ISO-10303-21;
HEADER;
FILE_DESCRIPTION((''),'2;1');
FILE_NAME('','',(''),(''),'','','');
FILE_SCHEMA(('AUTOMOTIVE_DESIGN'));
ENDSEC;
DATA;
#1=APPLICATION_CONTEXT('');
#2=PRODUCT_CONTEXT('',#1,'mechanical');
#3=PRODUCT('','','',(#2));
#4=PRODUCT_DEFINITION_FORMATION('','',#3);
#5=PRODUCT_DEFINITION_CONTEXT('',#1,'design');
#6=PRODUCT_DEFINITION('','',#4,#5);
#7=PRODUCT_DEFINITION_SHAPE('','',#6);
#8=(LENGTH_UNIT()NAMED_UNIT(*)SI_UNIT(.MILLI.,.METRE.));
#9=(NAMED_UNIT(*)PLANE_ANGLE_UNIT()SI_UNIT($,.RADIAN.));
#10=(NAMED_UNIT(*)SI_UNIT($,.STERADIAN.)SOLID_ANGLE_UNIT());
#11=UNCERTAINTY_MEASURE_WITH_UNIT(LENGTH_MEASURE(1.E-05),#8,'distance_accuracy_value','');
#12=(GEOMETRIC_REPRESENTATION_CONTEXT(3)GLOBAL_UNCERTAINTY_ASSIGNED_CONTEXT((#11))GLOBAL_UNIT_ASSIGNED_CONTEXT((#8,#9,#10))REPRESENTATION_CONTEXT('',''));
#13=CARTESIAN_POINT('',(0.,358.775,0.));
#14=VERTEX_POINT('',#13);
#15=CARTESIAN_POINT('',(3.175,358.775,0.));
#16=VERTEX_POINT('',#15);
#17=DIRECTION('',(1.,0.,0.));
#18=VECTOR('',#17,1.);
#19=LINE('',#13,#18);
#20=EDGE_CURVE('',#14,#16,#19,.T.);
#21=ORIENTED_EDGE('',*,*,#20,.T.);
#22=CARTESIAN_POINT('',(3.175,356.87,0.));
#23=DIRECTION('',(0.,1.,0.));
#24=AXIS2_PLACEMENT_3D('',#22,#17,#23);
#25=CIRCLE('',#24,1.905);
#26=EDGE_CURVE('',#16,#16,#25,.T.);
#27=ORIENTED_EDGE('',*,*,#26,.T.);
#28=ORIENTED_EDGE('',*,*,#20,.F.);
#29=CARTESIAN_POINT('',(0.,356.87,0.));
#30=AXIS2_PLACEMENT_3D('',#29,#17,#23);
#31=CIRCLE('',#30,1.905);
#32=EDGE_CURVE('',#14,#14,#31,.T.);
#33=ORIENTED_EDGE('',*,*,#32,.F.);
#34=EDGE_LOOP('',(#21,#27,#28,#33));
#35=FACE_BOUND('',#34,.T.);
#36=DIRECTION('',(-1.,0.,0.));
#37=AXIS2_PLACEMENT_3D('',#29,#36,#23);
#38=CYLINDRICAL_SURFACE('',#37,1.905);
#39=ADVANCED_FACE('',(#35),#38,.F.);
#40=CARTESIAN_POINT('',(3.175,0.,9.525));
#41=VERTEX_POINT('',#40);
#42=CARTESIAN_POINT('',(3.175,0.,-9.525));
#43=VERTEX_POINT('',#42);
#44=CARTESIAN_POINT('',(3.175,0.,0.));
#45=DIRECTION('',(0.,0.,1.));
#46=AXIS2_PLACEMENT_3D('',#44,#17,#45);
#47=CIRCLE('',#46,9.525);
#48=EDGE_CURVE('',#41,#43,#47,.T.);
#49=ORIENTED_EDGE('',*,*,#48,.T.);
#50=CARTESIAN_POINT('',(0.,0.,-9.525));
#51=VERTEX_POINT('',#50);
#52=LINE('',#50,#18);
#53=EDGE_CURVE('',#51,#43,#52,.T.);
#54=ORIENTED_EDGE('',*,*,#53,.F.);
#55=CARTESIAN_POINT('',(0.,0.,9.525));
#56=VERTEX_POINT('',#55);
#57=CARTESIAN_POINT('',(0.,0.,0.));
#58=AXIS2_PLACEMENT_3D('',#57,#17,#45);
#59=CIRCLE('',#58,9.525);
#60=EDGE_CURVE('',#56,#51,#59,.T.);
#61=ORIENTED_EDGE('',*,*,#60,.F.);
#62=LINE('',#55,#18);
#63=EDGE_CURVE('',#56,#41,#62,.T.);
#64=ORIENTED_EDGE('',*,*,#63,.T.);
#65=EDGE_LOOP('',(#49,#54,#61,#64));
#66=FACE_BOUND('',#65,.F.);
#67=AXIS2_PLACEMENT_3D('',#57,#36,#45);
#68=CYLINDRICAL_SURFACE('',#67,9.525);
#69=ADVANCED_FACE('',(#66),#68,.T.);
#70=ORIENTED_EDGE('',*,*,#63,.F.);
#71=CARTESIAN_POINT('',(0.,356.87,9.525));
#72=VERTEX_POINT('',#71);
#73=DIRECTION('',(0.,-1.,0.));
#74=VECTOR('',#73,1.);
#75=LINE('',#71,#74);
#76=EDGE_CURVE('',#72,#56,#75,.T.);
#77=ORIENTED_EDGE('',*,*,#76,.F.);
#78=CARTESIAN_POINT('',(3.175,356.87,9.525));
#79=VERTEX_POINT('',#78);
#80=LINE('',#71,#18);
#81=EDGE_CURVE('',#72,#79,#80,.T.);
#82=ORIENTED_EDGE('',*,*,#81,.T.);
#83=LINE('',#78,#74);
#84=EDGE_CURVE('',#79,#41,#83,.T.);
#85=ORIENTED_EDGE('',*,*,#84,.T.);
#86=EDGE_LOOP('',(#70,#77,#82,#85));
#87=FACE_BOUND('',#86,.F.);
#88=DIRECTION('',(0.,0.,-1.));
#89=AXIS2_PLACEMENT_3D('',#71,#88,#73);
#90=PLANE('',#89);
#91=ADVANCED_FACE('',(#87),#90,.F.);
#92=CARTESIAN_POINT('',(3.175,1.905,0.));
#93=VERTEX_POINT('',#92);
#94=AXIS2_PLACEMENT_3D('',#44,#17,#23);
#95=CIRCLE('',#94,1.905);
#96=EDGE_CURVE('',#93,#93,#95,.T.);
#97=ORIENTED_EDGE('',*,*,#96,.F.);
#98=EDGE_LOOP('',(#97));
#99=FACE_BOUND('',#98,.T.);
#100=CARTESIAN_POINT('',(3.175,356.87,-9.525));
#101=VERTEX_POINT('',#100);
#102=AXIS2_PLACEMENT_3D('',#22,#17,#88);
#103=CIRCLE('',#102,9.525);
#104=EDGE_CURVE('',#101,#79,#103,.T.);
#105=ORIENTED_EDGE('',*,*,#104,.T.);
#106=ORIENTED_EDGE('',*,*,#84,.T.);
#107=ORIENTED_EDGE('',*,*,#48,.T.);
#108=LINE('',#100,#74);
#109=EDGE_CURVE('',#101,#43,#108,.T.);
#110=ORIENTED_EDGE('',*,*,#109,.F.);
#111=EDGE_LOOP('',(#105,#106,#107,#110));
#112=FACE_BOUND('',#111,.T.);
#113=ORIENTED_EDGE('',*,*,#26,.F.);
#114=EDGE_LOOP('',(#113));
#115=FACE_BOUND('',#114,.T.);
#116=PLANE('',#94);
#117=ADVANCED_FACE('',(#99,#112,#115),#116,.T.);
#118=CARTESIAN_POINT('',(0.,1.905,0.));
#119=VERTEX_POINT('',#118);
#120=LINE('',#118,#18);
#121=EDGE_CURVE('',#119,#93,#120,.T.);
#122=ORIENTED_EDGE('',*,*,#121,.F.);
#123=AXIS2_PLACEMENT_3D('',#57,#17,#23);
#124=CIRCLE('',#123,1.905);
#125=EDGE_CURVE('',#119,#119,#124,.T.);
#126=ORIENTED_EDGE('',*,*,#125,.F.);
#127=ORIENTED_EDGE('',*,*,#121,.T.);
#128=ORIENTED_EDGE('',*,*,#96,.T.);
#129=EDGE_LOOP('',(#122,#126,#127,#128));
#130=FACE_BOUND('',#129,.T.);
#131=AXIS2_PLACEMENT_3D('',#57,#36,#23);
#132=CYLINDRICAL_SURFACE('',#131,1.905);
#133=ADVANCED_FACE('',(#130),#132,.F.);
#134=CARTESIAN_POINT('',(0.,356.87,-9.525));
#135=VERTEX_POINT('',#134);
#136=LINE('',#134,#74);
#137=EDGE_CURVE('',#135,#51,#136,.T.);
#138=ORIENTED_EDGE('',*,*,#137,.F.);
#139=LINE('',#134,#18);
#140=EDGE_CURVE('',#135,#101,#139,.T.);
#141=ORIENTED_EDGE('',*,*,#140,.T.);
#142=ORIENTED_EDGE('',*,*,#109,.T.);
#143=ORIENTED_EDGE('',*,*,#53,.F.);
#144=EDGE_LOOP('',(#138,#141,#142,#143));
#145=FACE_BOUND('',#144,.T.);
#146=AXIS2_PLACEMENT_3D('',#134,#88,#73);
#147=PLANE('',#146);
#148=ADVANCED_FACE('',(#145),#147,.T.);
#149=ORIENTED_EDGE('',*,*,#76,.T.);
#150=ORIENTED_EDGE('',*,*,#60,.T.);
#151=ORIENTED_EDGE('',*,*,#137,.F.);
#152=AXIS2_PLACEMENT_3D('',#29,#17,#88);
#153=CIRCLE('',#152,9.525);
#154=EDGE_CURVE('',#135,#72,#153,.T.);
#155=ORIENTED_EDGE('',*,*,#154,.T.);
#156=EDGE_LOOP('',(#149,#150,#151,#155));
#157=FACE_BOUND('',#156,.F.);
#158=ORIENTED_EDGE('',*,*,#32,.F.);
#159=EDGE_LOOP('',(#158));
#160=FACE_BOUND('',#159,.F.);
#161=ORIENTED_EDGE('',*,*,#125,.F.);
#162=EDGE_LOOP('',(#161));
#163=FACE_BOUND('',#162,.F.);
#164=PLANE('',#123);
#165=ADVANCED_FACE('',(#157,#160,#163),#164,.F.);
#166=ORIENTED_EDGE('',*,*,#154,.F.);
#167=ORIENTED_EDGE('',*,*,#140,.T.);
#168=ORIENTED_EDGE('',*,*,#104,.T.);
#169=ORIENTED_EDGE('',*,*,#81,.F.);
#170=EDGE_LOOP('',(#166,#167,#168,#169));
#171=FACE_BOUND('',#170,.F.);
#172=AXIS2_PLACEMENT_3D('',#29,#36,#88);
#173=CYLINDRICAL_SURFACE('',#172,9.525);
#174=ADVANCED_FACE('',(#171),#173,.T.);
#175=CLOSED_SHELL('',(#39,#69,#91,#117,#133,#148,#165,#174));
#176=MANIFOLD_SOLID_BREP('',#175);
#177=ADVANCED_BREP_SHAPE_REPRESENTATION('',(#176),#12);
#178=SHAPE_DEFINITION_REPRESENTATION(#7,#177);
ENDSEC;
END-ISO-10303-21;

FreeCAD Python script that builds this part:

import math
import FreeCAD as App
import Part
import Sketcher
from FreeCAD import Vector
Q = App.Units.Quantity

doc = App.newDocument("Part")
body = doc.addObject("PartDesign::Body", "Body")

# Sketch on YZ plane
sketch1 = body.newObject("Sketcher::SketchObject", "Sketch")
sketch1.AttachmentSupport = (doc.getObject("YZ_Plane"), [""])
sketch1.MapMode = "FlatFace"
sketch1.addGeometry([
    Part.LineSegment(Vector(356.9, 9.5, 0), Vector(0, 9.5, 0)),  # 0
    Part.ArcOfCircle(Part.Circle(Vector(0, 0, 0), Vector(0, 0, 1), 9.5), math.radians(90), math.radians(270)),  # 1
    Part.LineSegment(Vector(0, -9.5, 0), Vector(356.9, -9.5, 0)),  # 2
    Part.ArcOfCircle(Part.Circle(Vector(356.9, 0, 0), Vector(0, 0, 1), 9.5), math.radians(-90), math.radians(90)),  # 3
    Part.Circle(Vector(0, 0, 0), Vector(0, 0, 1), 1.9),  # 4
    Part.Circle(Vector(356.9, 0, 0), Vector(0, 0, 1), 1.9),  # 5
], False)
sketch1.addConstraint([
    Sketcher.Constraint("Tangent", 0, 2, 1, 1),
    Sketcher.Constraint("Tangent", 1, 2, 2, 1),
    Sketcher.Constraint("Tangent", 2, 2, 3, 1),
    Sketcher.Constraint("Tangent", 3, 2, 0, 1),
    Sketcher.Constraint("Horizontal", 0),
    Sketcher.Constraint("Horizontal", 2),
    Sketcher.Constraint("Coincident", 1, 3, -1, 1),
    Sketcher.Constraint("Coincident", 4, 3, -1, 1),
    Sketcher.Constraint("Coincident", 5, 3, 3, 3),
    Sketcher.Constraint("Equal", 4, 5),
    Sketcher.Constraint("Diameter", 4, Q("0.15 in")),
    Sketcher.Constraint("Radius", 1, Q("0.375 in")),
    Sketcher.Constraint("DistanceX", 0, 2, 0, 1, Q("14.05 in")),
])
pad1 = body.newObject("PartDesign::Pad", "Pad")
pad1.Profile = sketch1
pad1.Length = Q("0.125 in")

doc.recompute()
